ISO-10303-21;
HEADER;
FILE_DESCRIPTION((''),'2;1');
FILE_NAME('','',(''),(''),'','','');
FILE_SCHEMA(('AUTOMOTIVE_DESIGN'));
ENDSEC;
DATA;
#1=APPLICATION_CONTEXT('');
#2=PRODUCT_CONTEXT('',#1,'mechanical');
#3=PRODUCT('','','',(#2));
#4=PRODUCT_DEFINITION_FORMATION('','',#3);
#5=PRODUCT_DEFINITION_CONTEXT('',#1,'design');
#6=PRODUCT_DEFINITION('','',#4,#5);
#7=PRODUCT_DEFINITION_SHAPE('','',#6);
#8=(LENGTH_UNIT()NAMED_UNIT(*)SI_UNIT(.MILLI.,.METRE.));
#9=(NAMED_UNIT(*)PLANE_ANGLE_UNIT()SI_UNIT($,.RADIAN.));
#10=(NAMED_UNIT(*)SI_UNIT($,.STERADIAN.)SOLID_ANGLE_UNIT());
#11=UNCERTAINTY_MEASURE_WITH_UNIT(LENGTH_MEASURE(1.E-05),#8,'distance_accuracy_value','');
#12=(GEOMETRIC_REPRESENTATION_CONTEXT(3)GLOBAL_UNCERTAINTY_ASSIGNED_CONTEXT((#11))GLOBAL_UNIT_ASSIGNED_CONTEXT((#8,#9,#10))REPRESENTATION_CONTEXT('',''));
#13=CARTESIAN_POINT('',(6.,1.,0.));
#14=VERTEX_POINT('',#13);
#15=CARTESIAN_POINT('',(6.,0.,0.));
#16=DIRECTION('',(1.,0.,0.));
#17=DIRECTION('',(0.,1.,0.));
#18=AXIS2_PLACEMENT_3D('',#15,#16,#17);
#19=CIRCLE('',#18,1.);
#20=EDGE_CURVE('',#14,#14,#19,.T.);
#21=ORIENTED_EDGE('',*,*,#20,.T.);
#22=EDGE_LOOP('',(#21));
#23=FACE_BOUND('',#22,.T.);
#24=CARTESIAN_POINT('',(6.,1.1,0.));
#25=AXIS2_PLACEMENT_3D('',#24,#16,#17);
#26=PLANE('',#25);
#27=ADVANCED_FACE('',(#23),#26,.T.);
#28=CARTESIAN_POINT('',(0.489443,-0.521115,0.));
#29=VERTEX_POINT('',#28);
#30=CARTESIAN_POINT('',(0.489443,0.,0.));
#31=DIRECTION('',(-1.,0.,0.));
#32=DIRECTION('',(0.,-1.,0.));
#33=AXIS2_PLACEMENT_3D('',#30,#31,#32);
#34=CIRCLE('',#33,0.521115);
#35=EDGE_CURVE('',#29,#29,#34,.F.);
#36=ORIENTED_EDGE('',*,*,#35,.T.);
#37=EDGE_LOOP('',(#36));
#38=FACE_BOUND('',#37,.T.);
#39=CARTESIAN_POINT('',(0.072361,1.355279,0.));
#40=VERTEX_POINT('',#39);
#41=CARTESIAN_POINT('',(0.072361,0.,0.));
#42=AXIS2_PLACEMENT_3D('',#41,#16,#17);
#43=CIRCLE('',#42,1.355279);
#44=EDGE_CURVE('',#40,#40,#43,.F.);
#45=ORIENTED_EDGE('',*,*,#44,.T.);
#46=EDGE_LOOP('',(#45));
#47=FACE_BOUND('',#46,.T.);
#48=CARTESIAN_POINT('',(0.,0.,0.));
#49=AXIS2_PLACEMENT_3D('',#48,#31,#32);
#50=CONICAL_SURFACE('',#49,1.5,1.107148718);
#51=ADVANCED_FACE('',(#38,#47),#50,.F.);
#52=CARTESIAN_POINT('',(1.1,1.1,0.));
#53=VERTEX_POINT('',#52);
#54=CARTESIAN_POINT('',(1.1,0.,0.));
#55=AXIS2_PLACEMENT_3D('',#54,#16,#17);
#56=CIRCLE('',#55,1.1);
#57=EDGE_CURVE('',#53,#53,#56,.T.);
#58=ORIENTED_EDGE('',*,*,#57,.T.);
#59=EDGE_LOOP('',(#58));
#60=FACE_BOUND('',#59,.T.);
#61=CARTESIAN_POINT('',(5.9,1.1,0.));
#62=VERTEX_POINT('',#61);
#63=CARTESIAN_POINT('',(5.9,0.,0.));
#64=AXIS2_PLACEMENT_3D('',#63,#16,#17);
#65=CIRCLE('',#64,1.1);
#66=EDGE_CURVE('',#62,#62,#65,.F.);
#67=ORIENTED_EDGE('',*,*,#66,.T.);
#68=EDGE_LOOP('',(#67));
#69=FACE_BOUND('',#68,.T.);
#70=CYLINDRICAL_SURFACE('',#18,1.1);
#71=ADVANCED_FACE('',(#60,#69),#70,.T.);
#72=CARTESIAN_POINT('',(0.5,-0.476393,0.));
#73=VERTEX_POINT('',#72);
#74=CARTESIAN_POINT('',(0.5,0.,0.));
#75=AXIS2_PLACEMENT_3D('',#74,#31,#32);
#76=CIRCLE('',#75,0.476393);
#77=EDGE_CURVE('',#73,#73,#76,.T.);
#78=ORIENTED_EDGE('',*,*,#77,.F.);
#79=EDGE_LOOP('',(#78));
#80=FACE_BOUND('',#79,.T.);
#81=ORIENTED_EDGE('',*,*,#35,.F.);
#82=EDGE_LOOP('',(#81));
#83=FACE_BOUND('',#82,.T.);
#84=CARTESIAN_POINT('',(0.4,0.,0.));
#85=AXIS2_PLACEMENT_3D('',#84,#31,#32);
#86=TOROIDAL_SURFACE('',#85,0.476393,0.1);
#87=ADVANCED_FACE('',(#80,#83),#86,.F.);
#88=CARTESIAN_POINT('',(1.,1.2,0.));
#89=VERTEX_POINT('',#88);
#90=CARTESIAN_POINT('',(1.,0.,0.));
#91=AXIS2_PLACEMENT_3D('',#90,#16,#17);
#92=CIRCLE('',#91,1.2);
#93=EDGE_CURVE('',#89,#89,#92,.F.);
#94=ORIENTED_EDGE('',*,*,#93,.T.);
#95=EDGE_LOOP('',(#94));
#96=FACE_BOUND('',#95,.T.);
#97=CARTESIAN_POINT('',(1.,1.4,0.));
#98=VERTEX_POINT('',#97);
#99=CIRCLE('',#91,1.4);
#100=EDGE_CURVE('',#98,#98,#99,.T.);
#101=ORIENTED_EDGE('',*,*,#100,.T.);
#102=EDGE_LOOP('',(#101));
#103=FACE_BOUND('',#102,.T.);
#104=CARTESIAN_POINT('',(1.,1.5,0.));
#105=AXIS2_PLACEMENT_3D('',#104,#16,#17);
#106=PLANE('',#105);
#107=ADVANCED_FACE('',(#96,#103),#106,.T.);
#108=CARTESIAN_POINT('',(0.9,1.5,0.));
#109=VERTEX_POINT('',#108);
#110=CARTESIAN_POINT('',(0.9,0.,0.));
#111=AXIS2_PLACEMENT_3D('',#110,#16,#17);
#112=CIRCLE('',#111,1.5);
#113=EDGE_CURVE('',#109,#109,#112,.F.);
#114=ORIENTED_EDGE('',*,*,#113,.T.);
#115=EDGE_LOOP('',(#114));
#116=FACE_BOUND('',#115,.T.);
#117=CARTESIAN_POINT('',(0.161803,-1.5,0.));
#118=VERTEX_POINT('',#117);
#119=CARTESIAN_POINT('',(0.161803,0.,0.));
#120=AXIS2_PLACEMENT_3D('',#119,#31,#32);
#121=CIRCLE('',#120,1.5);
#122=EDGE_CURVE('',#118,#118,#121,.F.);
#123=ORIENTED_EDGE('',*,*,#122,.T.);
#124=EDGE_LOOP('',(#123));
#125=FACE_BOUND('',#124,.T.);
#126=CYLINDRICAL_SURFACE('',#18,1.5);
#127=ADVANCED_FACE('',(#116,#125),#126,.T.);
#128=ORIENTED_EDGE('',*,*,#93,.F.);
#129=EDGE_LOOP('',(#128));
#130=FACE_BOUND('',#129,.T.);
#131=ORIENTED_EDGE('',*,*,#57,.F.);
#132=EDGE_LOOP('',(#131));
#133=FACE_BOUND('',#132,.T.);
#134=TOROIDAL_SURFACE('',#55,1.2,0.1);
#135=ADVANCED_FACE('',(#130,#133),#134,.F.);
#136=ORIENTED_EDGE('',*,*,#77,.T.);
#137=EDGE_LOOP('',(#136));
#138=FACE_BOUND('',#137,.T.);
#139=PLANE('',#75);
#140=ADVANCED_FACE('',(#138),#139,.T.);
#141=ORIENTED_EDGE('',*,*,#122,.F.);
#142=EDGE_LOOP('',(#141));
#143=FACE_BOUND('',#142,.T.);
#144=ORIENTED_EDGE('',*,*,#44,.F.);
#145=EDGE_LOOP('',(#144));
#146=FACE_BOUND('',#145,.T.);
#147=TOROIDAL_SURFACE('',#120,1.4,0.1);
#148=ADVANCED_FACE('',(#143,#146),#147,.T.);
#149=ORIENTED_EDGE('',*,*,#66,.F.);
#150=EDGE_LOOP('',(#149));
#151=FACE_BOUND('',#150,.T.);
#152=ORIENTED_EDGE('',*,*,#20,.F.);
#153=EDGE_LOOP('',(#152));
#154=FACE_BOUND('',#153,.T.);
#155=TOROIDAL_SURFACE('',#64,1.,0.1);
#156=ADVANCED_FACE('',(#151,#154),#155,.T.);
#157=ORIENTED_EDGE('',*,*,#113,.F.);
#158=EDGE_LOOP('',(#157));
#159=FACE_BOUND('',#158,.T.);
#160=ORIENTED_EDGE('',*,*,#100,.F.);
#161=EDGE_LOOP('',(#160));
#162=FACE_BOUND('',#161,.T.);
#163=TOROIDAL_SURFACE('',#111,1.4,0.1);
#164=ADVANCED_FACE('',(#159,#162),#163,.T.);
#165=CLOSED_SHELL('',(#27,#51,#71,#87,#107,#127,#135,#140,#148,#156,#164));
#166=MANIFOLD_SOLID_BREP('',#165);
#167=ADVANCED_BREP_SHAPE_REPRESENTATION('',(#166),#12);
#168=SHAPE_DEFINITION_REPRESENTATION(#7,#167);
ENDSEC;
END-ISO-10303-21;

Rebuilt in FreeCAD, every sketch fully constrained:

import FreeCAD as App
import Part
import Sketcher
Q = App.Units.Quantity


def edges_at(feature, points):
    """Names of the edges that pass closest to the given points."""
    edges = feature.Shape.Edges
    near = lambda p: min(range(len(edges)), key=lambda i: edges[i].distToShape(Part.Vertex(*p))[0])
    return sorted({f"Edge{near(p) + 1}" for p in points})


def add_polygon(sketch, points):
    """Adds a closed chain of lines whose ends are joined by coincident constraints."""
    first, n = sketch.GeometryCount, len(points)
    for a, b in zip(points, points[1:] + points[:1]):
        sketch.addGeometry(Part.LineSegment(App.Vector(*a, 0), App.Vector(*b, 0)), False)
    for i in range(n):
        sketch.addConstraint(Sketcher.Constraint("Coincident", first + i, 2, first + (i + 1) % n, 1))

doc = App.newDocument("Part")
body = doc.addObject("PartDesign::Body", "Body")

# Sketch on XY plane
sketch1 = body.newObject("Sketcher::SketchObject", "Sketch")
sketch1.AttachmentSupport = (doc.getObject("XY_Plane"), [""])
sketch1.MapMode = "FlatFace"
add_polygon(sketch1, [(1, 1.5), (0, 1.5), (0.5, 0.5), (0.5, 0), (6, 0), (6, 1.1), (1, 1.1)])  # lines 0-6
sketch1.addConstraint(Sketcher.Constraint("Horizontal", 0))
sketch1.addConstraint(Sketcher.Constraint("Vertical", 2))
sketch1.addConstraint(Sketcher.Constraint("Horizontal", 3))
sketch1.addConstraint(Sketcher.Constraint("Vertical", 4))
sketch1.addConstraint(Sketcher.Constraint("Horizontal", 5))
sketch1.addConstraint(Sketcher.Constraint("Vertical", 6))
sketch1.addConstraint(Sketcher.Constraint("PointOnObject", 0, 2, -2))
sketch1.addConstraint(Sketcher.Constraint("PointOnObject", 2, 2, -1))
sketch1.addConstraint(Sketcher.Constraint("DistanceX", 0, 2, 0, 1, Q("1 mm")))
sketch1.addConstraint(Sketcher.Constraint("DistanceX", 5, 2, 5, 1, Q("5 mm")))
sketch1.addConstraint(Sketcher.Constraint("DistanceX", 3, 1, 3, 2, Q("5.5 mm")))
sketch1.addConstraint(Sketcher.Constraint("DistanceY", 2, 2, 2, 1, Q("0.5 mm")))
sketch1.addConstraint(Sketcher.Constraint("DistanceY", 4, 1, 4, 2, Q("1.1 mm")))
sketch1.addConstraint(Sketcher.Constraint("DistanceY", 6, 1, 6, 2, Q("0.4 mm")))
revolution = body.newObject("PartDesign::Revolution", "Revolution")
revolution.Profile = sketch1
revolution.ReferenceAxis = (sketch1, ["H_Axis"])
revolution.Angle = 360
doc.recompute()

fillet = body.newObject("PartDesign::Fillet", "Fillet")
fillet.Base = (revolution, edges_at(revolution, [(6, -1.1, 0)]))
fillet.Radius = 0.1
doc.recompute()

fillet2 = body.newObject("PartDesign::Fillet", "Fillet001")
fillet2.Base = (fillet, edges_at(fillet, [
    (0.5, -0.5, 0),
    (1, -1.1, 0),
    (1, -1.5, 0),
    (0, -1.5, 0),
]))
fillet2.Radius = 0.1

doc.recompute()
